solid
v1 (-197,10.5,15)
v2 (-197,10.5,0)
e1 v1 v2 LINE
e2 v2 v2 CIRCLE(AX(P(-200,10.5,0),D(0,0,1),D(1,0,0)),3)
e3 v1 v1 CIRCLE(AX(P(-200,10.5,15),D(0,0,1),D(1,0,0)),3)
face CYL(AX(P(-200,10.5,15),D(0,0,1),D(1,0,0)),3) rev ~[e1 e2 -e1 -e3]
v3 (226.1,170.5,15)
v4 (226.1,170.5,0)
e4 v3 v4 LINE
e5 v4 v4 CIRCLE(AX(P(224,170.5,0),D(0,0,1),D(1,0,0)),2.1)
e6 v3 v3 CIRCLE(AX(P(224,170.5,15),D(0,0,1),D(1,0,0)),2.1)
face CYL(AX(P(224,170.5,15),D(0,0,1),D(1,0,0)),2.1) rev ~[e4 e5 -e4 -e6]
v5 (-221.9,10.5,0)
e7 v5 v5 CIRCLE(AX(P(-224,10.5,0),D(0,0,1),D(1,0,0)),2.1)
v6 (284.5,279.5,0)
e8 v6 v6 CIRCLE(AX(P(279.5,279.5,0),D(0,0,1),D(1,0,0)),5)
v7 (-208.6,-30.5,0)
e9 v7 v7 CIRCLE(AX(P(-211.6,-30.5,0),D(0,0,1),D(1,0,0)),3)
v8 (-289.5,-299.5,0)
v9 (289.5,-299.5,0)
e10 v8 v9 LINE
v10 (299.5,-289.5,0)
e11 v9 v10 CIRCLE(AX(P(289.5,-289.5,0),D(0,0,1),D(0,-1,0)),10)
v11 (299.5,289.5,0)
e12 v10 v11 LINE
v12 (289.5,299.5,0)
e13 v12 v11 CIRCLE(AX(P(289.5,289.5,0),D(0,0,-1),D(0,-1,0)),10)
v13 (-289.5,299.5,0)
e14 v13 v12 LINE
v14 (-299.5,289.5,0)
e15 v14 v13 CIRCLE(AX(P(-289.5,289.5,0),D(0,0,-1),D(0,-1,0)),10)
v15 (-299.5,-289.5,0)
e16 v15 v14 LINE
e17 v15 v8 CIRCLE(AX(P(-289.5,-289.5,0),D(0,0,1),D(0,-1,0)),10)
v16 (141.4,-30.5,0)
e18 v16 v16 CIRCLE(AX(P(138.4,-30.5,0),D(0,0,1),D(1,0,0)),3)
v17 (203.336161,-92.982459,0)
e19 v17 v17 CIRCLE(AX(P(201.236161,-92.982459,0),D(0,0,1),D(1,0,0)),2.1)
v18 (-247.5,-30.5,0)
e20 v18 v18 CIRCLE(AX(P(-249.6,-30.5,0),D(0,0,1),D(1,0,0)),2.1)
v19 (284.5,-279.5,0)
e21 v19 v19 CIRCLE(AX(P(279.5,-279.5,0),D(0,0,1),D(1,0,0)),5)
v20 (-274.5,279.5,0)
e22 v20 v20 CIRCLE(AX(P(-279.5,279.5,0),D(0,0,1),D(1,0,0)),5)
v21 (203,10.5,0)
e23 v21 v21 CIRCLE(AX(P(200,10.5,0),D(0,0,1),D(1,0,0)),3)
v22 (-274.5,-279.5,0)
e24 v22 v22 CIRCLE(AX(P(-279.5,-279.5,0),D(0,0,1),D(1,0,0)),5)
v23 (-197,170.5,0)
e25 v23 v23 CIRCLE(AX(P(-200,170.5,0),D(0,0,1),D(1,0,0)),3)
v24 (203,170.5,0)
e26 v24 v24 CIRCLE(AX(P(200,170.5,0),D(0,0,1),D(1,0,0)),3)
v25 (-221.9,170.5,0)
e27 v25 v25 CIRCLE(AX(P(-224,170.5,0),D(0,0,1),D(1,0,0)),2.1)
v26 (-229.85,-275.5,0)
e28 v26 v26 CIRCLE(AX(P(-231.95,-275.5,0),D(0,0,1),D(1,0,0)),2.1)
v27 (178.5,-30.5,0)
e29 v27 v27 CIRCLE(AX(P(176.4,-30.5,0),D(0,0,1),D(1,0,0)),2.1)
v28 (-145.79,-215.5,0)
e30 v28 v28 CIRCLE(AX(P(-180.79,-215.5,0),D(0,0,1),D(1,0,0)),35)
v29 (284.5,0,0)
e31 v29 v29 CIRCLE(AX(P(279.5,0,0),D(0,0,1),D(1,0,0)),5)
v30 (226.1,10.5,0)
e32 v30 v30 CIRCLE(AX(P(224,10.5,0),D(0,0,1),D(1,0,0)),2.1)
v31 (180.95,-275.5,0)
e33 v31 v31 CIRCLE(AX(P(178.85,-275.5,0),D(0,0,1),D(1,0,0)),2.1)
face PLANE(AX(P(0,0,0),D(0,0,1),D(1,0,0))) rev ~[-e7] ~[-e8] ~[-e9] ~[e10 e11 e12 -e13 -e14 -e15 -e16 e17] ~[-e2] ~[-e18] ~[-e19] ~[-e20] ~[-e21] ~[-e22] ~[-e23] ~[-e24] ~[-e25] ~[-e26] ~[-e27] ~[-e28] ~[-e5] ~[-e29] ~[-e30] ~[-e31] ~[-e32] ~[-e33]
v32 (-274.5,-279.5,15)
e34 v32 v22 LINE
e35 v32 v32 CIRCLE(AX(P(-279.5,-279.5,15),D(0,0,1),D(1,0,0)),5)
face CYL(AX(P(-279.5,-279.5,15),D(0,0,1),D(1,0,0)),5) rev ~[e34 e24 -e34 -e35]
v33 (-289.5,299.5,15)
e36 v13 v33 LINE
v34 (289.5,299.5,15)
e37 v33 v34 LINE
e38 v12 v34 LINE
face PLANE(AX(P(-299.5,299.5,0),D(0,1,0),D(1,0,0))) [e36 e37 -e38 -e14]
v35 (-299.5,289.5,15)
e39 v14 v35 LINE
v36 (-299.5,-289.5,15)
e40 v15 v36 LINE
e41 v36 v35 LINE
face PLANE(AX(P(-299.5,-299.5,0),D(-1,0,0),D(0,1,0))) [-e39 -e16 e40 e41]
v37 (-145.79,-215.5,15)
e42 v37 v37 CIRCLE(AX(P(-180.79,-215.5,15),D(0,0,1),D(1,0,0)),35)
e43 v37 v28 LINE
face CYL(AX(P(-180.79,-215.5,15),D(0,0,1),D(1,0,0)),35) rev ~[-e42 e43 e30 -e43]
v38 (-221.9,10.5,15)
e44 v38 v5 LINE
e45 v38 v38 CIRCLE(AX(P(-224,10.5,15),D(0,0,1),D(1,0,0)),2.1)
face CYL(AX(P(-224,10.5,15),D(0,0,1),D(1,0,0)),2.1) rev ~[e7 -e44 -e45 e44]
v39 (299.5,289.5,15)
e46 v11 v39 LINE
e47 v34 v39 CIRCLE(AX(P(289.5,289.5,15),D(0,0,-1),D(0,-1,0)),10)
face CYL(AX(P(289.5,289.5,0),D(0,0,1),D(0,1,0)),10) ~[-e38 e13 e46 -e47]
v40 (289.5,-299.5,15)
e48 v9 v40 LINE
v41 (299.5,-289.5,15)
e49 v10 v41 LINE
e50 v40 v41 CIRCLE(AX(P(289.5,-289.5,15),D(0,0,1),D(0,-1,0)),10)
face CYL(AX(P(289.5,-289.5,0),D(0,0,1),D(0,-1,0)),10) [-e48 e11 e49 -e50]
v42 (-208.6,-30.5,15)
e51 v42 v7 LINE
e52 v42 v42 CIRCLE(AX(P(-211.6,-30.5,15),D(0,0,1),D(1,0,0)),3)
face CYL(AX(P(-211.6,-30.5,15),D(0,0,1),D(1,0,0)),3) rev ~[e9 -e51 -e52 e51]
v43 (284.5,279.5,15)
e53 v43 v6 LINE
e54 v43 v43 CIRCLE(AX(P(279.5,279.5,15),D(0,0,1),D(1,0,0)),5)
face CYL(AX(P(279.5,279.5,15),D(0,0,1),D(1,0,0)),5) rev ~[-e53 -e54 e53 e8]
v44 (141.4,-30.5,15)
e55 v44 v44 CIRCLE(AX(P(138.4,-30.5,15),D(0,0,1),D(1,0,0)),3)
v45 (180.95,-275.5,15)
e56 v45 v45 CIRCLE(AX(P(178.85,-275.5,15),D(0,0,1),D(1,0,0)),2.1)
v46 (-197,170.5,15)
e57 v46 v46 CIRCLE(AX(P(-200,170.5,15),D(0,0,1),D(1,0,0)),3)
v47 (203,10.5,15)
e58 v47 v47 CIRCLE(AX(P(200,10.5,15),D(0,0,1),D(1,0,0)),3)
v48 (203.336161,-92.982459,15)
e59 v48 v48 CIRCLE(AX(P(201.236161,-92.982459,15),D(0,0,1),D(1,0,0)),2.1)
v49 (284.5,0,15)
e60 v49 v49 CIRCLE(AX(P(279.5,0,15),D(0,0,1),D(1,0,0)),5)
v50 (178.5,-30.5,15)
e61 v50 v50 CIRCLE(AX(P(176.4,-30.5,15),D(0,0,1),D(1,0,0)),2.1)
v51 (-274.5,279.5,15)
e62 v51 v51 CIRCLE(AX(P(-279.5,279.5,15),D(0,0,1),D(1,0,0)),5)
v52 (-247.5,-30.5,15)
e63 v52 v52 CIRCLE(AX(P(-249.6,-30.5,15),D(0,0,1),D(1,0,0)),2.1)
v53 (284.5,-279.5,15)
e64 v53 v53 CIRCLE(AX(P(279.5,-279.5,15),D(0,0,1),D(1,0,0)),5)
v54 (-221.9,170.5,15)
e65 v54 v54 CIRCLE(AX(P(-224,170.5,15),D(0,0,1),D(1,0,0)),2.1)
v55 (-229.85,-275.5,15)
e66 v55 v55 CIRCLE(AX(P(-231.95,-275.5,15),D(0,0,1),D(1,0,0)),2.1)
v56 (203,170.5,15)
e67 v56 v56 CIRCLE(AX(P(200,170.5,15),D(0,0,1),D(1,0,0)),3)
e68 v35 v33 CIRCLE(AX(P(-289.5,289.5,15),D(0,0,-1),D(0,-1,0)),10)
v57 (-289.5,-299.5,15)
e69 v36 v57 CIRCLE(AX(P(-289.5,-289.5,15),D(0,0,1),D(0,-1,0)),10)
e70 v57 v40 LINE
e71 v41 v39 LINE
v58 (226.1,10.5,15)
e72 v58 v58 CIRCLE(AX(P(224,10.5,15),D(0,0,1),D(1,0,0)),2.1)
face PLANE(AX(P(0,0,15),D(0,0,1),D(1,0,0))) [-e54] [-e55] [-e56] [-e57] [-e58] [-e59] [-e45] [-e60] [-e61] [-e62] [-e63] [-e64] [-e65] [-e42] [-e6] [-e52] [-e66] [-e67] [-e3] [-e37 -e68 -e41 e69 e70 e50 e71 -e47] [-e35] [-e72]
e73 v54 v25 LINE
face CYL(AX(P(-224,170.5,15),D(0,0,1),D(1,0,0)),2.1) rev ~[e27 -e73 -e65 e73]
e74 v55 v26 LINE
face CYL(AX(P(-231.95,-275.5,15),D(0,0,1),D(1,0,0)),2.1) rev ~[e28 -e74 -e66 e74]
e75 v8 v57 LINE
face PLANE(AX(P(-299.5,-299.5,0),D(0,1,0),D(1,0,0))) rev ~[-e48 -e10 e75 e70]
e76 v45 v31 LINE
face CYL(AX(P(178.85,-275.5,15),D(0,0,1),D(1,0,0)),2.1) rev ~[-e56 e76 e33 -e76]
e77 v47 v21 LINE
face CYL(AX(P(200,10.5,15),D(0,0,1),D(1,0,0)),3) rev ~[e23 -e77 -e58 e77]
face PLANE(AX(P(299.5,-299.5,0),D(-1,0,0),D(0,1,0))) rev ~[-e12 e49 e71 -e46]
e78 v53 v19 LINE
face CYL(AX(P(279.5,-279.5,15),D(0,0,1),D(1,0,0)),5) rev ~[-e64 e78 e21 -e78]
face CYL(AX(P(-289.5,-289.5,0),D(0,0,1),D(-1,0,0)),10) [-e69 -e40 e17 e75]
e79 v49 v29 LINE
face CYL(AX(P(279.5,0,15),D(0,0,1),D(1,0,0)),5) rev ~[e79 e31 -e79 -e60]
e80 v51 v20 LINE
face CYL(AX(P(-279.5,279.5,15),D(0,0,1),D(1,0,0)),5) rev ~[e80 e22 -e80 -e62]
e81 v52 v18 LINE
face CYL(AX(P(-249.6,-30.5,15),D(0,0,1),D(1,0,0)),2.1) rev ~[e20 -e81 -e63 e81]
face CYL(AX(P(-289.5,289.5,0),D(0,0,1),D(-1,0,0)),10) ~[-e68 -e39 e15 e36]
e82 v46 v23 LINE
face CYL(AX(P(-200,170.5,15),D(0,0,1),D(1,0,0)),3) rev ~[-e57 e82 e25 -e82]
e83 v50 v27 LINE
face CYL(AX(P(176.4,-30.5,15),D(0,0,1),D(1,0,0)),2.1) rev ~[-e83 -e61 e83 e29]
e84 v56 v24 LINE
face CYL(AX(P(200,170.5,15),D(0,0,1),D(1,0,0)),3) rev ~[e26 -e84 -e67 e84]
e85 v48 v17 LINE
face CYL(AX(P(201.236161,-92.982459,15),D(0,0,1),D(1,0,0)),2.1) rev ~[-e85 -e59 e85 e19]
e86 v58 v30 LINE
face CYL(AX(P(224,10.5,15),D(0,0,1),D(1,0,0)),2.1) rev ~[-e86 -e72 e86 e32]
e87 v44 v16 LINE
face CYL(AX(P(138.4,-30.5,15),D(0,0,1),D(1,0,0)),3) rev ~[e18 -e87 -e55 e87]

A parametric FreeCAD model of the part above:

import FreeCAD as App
import Part
import Sketcher
from FreeCAD import Vector


def edges_at(feature, points):
    """Names of the edges that pass closest to the given points."""
    edges = feature.Shape.Edges
    near = lambda p: min(range(len(edges)), key=lambda i: edges[i].distToShape(Part.Vertex(*p))[0])
    return sorted({f"Edge{near(p) + 1}" for p in points})

doc = App.newDocument("Part")
params = doc.addObject("Spreadsheet::Sheet", "Params")
for row, (alias, value) in enumerate([
    ("sketch1_width", "599 mm"),
    ("pad1_length", "15 mm"),
    ("sketch2_diameter", "10 mm"),
    ("fillet_radius", "10 mm"),
    ("sketch3_diameter", "70 mm"),
    ("sketch4_diameter", "6 mm"),
    ("sketch5_diameter", "4.2 mm"),
], start=1):
    params.set(f"A{row}", alias)
    params.set(f"B{row}", "=" + value)
    params.setAlias(f"B{row}", alias)

body = doc.addObject("PartDesign::Body", "Body")

# Sketch on XY plane
sketch1 = body.newObject("Sketcher::SketchObject", "Sketch")
sketch1.AttachmentSupport = (doc.getObject("XY_Plane"), [""])
sketch1.MapMode = "FlatFace"
sketch1.addGeometry([
    Part.LineSegment(Vector(-300, 300, 0), Vector(-300, -300, 0)),
    Part.LineSegment(Vector(-300, -300, 0), Vector(300, -300, 0)),
    Part.LineSegment(Vector(300, -300, 0), Vector(300, 300, 0)),
    Part.LineSegment(Vector(300, 300, 0), Vector(-300, 300, 0)),
], False)
sketch1.addConstraint([
    Sketcher.Constraint("Coincident", 0, 2, 1, 1),
    Sketcher.Constraint("Coincident", 1, 2, 2, 1),
    Sketcher.Constraint("Coincident", 2, 2, 3, 1),
    Sketcher.Constraint("Coincident", 3, 2, 0, 1),
    Sketcher.Constraint("Vertical", 0),
    Sketcher.Constraint("Horizontal", 1),
    Sketcher.Constraint("Vertical", 2),
    Sketcher.Constraint("Horizontal", 3),
    Sketcher.Constraint("Symmetric", 0, 2, 2, 2, -1, 1),
    Sketcher.Constraint("Equal", 3, 0),
    Sketcher.Constraint("DistanceX", 1, 1, 1, 2, 599.0),
])
sketch1.setExpression("Constraints[10]", "Params.sketch1_width")
pad1 = body.newObject("PartDesign::Pad", "Pad")
pad1.Profile = sketch1
pad1.setExpression("Length", "Params.pad1_length")

# Sketch on XY plane
sketch2 = body.newObject("Sketcher::SketchObject", "Sketch001")
sketch2.AttachmentSupport = (doc.getObject("XY_Plane"), [""])
sketch2.MapMode = "FlatFace"
sketch2.AttachmentOffset = App.Placement(Vector(0, 0, 15), App.Rotation())
sketch2.addGeometry([
    Part.Circle(Vector(-280, -280, 0), Vector(0, 0, 1), 5),  # 0
    Part.Circle(Vector(280, -280, 0), Vector(0, 0, 1), 5),  # 1
    Part.Circle(Vector(-280, 280, 0), Vector(0, 0, 1), 5),  # 2
    Part.Circle(Vector(280, 280, 0), Vector(0, 0, 1), 5),  # 3
    Part.Circle(Vector(280, 0, 0), Vector(0, 0, 1), 5),  # 4
], False)
sketch2.addConstraint([
    Sketcher.Constraint("Equal", 0, 1),
    Sketcher.Constraint("Equal", 1, 2),
    Sketcher.Constraint("Equal", 2, 3),
    Sketcher.Constraint("Equal", 3, 4),
    Sketcher.Constraint("Symmetric", 1, 3, 2, 3, -1, 1),
    Sketcher.Constraint("Symmetric", 0, 3, 3, 3, -1, 1),
    Sketcher.Constraint("Symmetric", 0, 3, 1, 3, -2),
    Sketcher.Constraint("PointOnObject", 4, 3, -1),
    Sketcher.Constraint("Vertical", 3, 3, 4, 3),
    Sketcher.Constraint("Diameter", 0, 10.0),
    Sketcher.Constraint("DistanceX", 0, 3, 1, 3, 559.0),
    Sketcher.Constraint("DistanceY", 0, 3, 2, 3, 559.0),
])
sketch2.setExpression("Constraints[9]", "Params.sketch2_diameter")
pocket1 = body.newObject("PartDesign::Pocket", "Pocket")
pocket1.Profile = sketch2
pocket1.Type = "ThroughAll"
doc.recompute()

fillet = body.newObject("PartDesign::Fillet", "Fillet")
fillet.Base = (pocket1, edges_at(pocket1, [
    (-299.5, -299.5, 7.5),
    (299.5, -299.5, 7.5),
    (-299.5, 299.5, 7.5),
    (299.5, 299.5, 7.5),
]))
fillet.setExpression("Radius", "Params.fillet_radius")

# Sketch on XY plane
sketch3 = body.newObject("Sketcher::SketchObject", "Sketch002")
sketch3.AttachmentSupport = (doc.getObject("XY_Plane"), [""])
sketch3.MapMode = "FlatFace"
sketch3.AttachmentOffset = App.Placement(Vector(0, 0, 15), App.Rotation())
sketch3.addGeometry(Part.Circle(Vector(-181, -216, 0), Vector(0, 0, 1), 35), False)
sketch3.addConstraint([
    Sketcher.Constraint("Diameter", 0, 70.0),
    Sketcher.Constraint("DistanceY", 0, 3, -1, 1, 215.5),
    Sketcher.Constraint("DistanceX", 0, 3, -1, 1, 180.79),
])
sketch3.setExpression("Constraints[0]", "Params.sketch3_diameter")
pocket2 = body.newObject("PartDesign::Pocket", "Pocket001")
pocket2.Profile = sketch3
pocket2.Type = "ThroughAll"

# Sketch on XY plane
sketch4 = body.newObject("Sketcher::SketchObject", "Sketch003")
sketch4.AttachmentSupport = (doc.getObject("XY_Plane"), [""])
sketch4.MapMode = "FlatFace"
sketch4.AttachmentOffset = App.Placement(Vector(0, 0, 15), App.Rotation())
sketch4.addGeometry([
    Part.Circle(Vector(-200, 170.5, 0), Vector(0, 0, 1), 3),  # 0
    Part.Circle(Vector(-200, 10.5, 0), Vector(0, 0, 1), 3),  # 1
    Part.Circle(Vector(200, 170.5, 0), Vector(0, 0, 1), 3),  # 2
    Part.Circle(Vector(200, 10.5, 0), Vector(0, 0, 1), 3),  # 3
    Part.Circle(Vector(138.4, -30.5, 0), Vector(0, 0, 1), 3),  # 4
    Part.Circle(Vector(-211.6, -30.5, 0), Vector(0, 0, 1), 3),  # 5
], False)
sketch4.addConstraint([
    Sketcher.Constraint("Equal", 0, 1),
    Sketcher.Constraint("Equal", 1, 2),
    Sketcher.Constraint("Equal", 2, 3),
    Sketcher.Constraint("Equal", 3, 4),
    Sketcher.Constraint("Equal", 4, 5),
    Sketcher.Constraint("Symmetric", 0, 3, 2, 3, -2),
    Sketcher.Constraint("Symmetric", 1, 3, 3, 3, -2),
    Sketcher.Constraint("Horizontal", 4, 3, 5, 3),
    Sketcher.Constraint("Vertical", 0, 3, 1, 3),
    Sketcher.Constraint("Diameter", 0, 6.0),
    Sketcher.Constraint("DistanceX", 0, 3, -1, 1, 200.0),
    Sketcher.Constraint("DistanceY", 1, 3, 0, 3, 160.0),
    Sketcher.Constraint("DistanceY", 4, 3, 3, 3, 41.0),
    Sketcher.Constraint("DistanceX", 5, 3, 4, 3, 350.0),
    Sketcher.Constraint("DistanceY", -1, 1, 0, 3, 170.5),
    Sketcher.Constraint("DistanceX", -1, 1, 4, 3, 138.4),
])
sketch4.setExpression("Constraints[9]", "Params.sketch4_diameter")
pocket3 = body.newObject("PartDesign::Pocket", "Pocket002")
pocket3.Profile = sketch4
pocket3.Type = "ThroughAll"

# Sketch on XY plane
sketch5 = body.newObject("Sketcher::SketchObject", "Sketch004")
sketch5.AttachmentSupport = (doc.getObject("XY_Plane"), [""])
sketch5.MapMode = "FlatFace"
sketch5.AttachmentOffset = App.Placement(Vector(0, 0, 15), App.Rotation())
sketch5.addGeometry([
    Part.Circle(Vector(-224, 170.5, 0), Vector(0, 0, 1), 2.1),  # 0
    Part.Circle(Vector(224, 170.5, 0), Vector(0, 0, 1), 2.1),  # 1
    Part.Circle(Vector(224, 10.5, 0), Vector(0, 0, 1), 2.1),  # 2
    Part.Circle(Vector(201.2, -93, 0), Vector(0, 0, 1), 2.1),  # 3
    Part.Circle(Vector(178.8, -275.5, 0), Vector(0, 0, 1), 2.1),  # 4
    Part.Circle(Vector(-231.9, -275.5, 0), Vector(0, 0, 1), 2.1),  # 5
    Part.Circle(Vector(-249.6, -30.5, 0), Vector(0, 0, 1), 2.1),  # 6
    Part.Circle(Vector(-224, 10.5, 0), Vector(0, 0, 1), 2.1),  # 7
    Part.Circle(Vector(176.4, -30.5, 0), Vector(0, 0, 1), 2.1),  # 8
], False)
sketch5.addConstraint([
    Sketcher.Constraint("Equal", 0, 1),
    Sketcher.Constraint("Equal", 1, 2),
    Sketcher.Constraint("Equal", 2, 3),
    Sketcher.Constraint("Equal", 3, 4),
    Sketcher.Constraint("Equal", 4, 5),
    Sketcher.Constraint("Equal", 5, 6),
    Sketcher.Constraint("Equal", 6, 7),
    Sketcher.Constraint("Equal", 7, 8),
    Sketcher.Constraint("Symmetric", 0, 3, 1, 3, -2),
    Sketcher.Constraint("Symmetric", 2, 3, 7, 3, -2),
    Sketcher.Constraint("Horizontal", 4, 3, 5, 3),
    Sketcher.Constraint("Horizontal", 6, 3, 8, 3),
    Sketcher.Constraint("Vertical", 1, 3, 2, 3),
    Sketcher.Constraint("Diameter", 0, 4.2),
    Sketcher.Constraint("DistanceX", 0, 3, -1, 1, 224.0),
    Sketcher.Constraint("DistanceY", 2, 3, 1, 3, 160.0),
    Sketcher.Constraint("DistanceY", 4, 3, 2, 3, 286.0),
    Sketcher.Constraint("DistanceY", 6, 3, 0, 3, 201.0),
    Sketcher.Constraint("DistanceY", -1, 1, 0, 3, 170.5),
    Sketcher.Constraint("DistanceX", 6, 3, -1, 1, 249.6),
    Sketcher.Constraint("DistanceX", -1, 1, 8, 3, 176.4),
    Sketcher.Constraint("DistanceX", 5, 3, 4, 3, 410.8),
    Sketcher.Constraint("DistanceX", -1, 1, 4, 3, 178.85),
    Sketcher.Constraint("DistanceX", -1, 1, 3, 3, 201.236161),
    Sketcher.Constraint("DistanceY", 3, 3, -1, 1, 92.982459),
])
sketch5.setExpression("Constraints[13]", "Params.sketch5_diameter")
pocket4 = body.newObject("PartDesign::Pocket", "Pocket003")
pocket4.Profile = sketch5
pocket4.Type = "ThroughAll"

doc.recompute()
